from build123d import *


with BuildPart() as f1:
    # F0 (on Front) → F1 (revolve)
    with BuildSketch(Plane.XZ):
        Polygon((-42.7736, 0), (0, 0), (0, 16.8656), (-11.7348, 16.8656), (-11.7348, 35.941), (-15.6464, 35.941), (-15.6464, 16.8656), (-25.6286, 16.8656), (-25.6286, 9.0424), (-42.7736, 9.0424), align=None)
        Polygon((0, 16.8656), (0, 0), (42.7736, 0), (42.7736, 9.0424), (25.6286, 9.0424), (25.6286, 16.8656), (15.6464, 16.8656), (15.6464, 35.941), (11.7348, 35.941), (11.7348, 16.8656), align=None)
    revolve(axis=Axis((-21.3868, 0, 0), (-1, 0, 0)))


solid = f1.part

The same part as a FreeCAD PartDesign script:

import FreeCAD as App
import Part
import Sketcher

V = App.Vector
Q = App.Units.Quantity


def add_polygon(sketch, points):
    """Adds a closed chain of lines whose ends are joined by coincident constraints."""
    first, n = sketch.GeometryCount, len(points)
    for a, b in zip(points, points[1:] + points[:1]):
        sketch.addGeometry(Part.LineSegment(App.Vector(*a, 0), App.Vector(*b, 0)), False)
    for i in range(n):
        sketch.addConstraint(Sketcher.Constraint("Coincident", first + i, 2, first + (i + 1) % n, 1))

doc = App.newDocument("Part")
body = doc.addObject("PartDesign::Body", "Body")

# Sketch on XZ plane
sketch1 = body.newObject("Sketcher::SketchObject", "Sketch")
sketch1.AttachmentSupport = (doc.getObject("XZ_Plane"), [""])
sketch1.MapMode = "FlatFace"
add_polygon(sketch1, [(-42.7736, 0), (42.7736, 0), (42.7736, 9.0424), (25.6286, 9.0424), (25.6286, 16.8656), (15.6464, 16.8656), (15.6464, 35.941), (11.7348, 35.941), (11.7348, 16.8656), (-11.7348, 16.8656), (-11.7348, 35.941), (-15.6464, 35.941), (-15.6464, 16.8656), (-25.6286, 16.8656), (-25.6286, 9.0424), (-42.7736, 9.0424)])  # lines 0-15
sketch1.addConstraint([
    Sketcher.Constraint("Horizontal", 0),
    Sketcher.Constraint("Vertical", 1),
    Sketcher.Constraint("Horizontal", 2),
    Sketcher.Constraint("Vertical", 3),
    Sketcher.Constraint("Horizontal", 4),
    Sketcher.Constraint("Vertical", 5),
    Sketcher.Constraint("Horizontal", 6),
    Sketcher.Constraint("Vertical", 7),
    Sketcher.Constraint("Horizontal", 8),
    Sketcher.Constraint("Vertical", 9),
    Sketcher.Constraint("Horizontal", 10),
    Sketcher.Constraint("Vertical", 11),
    Sketcher.Constraint("Horizontal", 12),
    Sketcher.Constraint("Vertical", 13),
    Sketcher.Constraint("Horizontal", 14),
    Sketcher.Constraint("Vertical", 15),
    Sketcher.Constraint("Symmetric", 0, 2, 15, 2, -1, 1),
    Sketcher.Constraint("Symmetric", 6, 2, 9, 2, -2),
    Sketcher.Constraint("Symmetric", 4, 2, 11, 2, -2),
    Sketcher.Constraint("Symmetric", 2, 2, 13, 2, -2),
    Sketcher.Constraint("Horizontal", 4, 2, 7, 2),
    Sketcher.Constraint("DistanceX", 0, 1, 0, 2, Q("3.368 in")),
    Sketcher.Constraint("DistanceX", 2, 2, 2, 1, Q("0.675 in")),
    Sketcher.Constraint("DistanceX", 4, 2, 4, 1, Q("0.393 in")),
    Sketcher.Constraint("DistanceX", 6, 2, 6, 1, Q("0.154 in")),
    Sketcher.Constraint("DistanceY", 1, 1, 1, 2, Q("0.356 in")),
    Sketcher.Constraint("DistanceY", 3, 1, 3, 2, Q("0.308 in")),
    Sketcher.Constraint("DistanceY", 5, 1, 5, 2, Q("0.751 in")),
])
revolution = body.newObject("PartDesign::Revolution", "Revolution")
revolution.Profile = sketch1
revolution.ReferenceAxis = (sketch1, ["H_Axis"])
revolution.Angle = 360

doc.recompute()
